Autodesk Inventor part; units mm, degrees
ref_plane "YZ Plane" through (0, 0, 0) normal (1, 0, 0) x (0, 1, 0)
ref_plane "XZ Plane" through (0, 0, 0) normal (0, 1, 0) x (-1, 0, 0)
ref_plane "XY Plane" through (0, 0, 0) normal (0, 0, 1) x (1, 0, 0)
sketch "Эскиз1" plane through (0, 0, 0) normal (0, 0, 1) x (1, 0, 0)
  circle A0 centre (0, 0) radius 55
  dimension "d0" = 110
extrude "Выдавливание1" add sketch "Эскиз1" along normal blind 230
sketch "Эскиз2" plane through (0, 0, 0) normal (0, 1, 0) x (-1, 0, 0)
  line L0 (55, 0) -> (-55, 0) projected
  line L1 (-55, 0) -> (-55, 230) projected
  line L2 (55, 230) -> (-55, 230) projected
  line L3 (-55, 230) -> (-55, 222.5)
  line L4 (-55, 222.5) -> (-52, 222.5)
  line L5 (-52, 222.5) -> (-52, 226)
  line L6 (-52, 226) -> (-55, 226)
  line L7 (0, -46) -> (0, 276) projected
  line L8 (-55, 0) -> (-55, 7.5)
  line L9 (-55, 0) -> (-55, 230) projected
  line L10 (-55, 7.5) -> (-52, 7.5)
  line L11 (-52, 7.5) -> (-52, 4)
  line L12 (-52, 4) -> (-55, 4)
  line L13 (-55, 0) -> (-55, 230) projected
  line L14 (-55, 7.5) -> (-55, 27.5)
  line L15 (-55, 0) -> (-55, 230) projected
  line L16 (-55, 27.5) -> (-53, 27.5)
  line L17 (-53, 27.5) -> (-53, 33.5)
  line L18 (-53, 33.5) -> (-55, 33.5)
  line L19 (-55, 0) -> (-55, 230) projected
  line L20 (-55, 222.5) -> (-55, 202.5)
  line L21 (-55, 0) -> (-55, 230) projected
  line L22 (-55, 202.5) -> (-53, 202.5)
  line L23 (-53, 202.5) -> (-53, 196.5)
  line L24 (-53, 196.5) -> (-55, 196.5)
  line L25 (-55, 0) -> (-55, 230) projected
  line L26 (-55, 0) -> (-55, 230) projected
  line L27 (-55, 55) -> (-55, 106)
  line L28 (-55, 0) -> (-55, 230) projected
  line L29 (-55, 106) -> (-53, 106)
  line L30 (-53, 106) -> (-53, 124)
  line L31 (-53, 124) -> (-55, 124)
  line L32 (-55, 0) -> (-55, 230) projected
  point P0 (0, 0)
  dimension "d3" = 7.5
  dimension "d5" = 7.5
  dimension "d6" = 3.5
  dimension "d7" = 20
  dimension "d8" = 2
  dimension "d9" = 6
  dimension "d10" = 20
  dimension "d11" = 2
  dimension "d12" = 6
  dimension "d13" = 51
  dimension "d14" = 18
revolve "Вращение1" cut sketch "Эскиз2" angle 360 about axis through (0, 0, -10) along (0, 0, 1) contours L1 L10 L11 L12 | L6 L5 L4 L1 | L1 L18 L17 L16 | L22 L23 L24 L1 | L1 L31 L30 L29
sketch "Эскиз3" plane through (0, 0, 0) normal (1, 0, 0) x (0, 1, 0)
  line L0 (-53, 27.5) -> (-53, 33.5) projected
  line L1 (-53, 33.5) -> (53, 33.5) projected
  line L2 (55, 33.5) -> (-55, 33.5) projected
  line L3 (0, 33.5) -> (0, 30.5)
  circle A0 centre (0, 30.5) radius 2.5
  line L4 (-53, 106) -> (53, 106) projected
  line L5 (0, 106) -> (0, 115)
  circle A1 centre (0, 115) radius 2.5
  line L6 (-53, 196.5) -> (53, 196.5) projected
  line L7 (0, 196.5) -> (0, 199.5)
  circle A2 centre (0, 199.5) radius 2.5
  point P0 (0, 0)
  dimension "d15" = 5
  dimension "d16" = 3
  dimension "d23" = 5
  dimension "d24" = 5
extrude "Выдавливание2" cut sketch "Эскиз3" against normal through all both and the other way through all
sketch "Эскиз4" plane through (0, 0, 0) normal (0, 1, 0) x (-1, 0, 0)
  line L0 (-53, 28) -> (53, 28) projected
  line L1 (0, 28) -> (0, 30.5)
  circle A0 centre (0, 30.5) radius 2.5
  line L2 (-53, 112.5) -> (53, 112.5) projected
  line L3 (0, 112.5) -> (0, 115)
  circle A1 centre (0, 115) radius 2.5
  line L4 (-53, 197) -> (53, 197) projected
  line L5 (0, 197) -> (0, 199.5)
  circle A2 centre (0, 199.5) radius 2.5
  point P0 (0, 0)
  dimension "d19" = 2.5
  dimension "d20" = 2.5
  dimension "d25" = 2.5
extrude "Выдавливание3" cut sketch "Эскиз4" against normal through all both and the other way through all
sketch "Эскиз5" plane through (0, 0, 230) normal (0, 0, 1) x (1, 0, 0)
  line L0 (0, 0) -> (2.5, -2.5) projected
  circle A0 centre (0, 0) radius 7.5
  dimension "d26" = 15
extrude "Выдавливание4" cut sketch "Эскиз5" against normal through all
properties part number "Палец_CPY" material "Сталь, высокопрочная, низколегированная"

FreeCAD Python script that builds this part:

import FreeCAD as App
import Part
import Sketcher
Q = App.Units.Quantity

doc = App.newDocument("Part")
body = doc.addObject("PartDesign::Body", "Body")

# Sketch on XY plane
sketch1 = doc.addObject("Sketcher::SketchObject", "Sketch")
body.addObject(sketch1)
sketch1.AttachmentSupport = (doc.XY_Plane, [""])
sketch1.MapMode = "FlatFace"
sketch1.addGeometry(Part.Circle(App.Vector(0, 0, 0), App.Vector(0, 0, 1), 55), False)
sketch1.addConstraint([
    Sketcher.Constraint("Coincident", 0, 3, -1, 1),
    Sketcher.Constraint("Diameter", 0, Q("110 mm")),
])
pad1 = doc.addObject("PartDesign::Pad", "Pad")
body.addObject(pad1)
pad1.Profile = sketch1
pad1.Length = 230

# Sketch on XZ plane
sketch2 = doc.addObject("Sketcher::SketchObject", "Sketch001")
body.addObject(sketch2)
sketch2.AttachmentSupport = (doc.XZ_Plane, [""])
sketch2.MapMode = "FlatFace"
sketch2.addGeometry([
    Part.LineSegment(App.Vector(55, 7.5, 0), App.Vector(55, 4, 0)),  # 0
    Part.LineSegment(App.Vector(55, 4, 0), App.Vector(52, 4, 0)),  # 1
    Part.LineSegment(App.Vector(52, 4, 0), App.Vector(52, 7.5, 0)),  # 2
    Part.LineSegment(App.Vector(52, 7.5, 0), App.Vector(55, 7.5, 0)),  # 3
    Part.LineSegment(App.Vector(52, 226, 0), App.Vector(55, 226, 0)),  # 4
    Part.LineSegment(App.Vector(55, 226, 0), App.Vector(55, 222.5, 0)),  # 5
    Part.LineSegment(App.Vector(55, 222.5, 0), App.Vector(52, 222.5, 0)),  # 6
    Part.LineSegment(App.Vector(52, 222.5, 0), App.Vector(52, 226, 0)),  # 7
    Part.LineSegment(App.Vector(55, 33.5, 0), App.Vector(55, 27.5, 0)),  # 8
    Part.LineSegment(App.Vector(55, 27.5, 0), App.Vector(53, 27.5, 0)),  # 9
    Part.LineSegment(App.Vector(53, 27.5, 0), App.Vector(53, 33.5, 0)),  # 10
    Part.LineSegment(App.Vector(53, 33.5, 0), App.Vector(55, 33.5, 0)),  # 11
    Part.LineSegment(App.Vector(53, 202.5, 0), App.Vector(55, 202.5, 0)),  # 12
    Part.LineSegment(App.Vector(55, 202.5, 0), App.Vector(55, 196.5, 0)),  # 13
    Part.LineSegment(App.Vector(55, 196.5, 0), App.Vector(53, 196.5, 0)),  # 14
    Part.LineSegment(App.Vector(53, 196.5, 0), App.Vector(53, 202.5, 0)),  # 15
    Part.LineSegment(App.Vector(55, 124, 0), App.Vector(55, 106, 0)),  # 16
    Part.LineSegment(App.Vector(55, 106, 0), App.Vector(53, 106, 0)),  # 17
    Part.LineSegment(App.Vector(53, 106, 0), App.Vector(53, 124, 0)),  # 18
    Part.LineSegment(App.Vector(53, 124, 0), App.Vector(55, 124, 0)),  # 19
], False)
sketch2.addConstraint([
    Sketcher.Constraint("Coincident", 0, 2, 1, 1),
    Sketcher.Constraint("Coincident", 1, 2, 2, 1),
    Sketcher.Constraint("Coincident", 2, 2, 3, 1),
    Sketcher.Constraint("Coincident", 3, 2, 0, 1),
    Sketcher.Constraint("Coincident", 4, 2, 5, 1),
    Sketcher.Constraint("Coincident", 5, 2, 6, 1),
    Sketcher.Constraint("Coincident", 6, 2, 7, 1),
    Sketcher.Constraint("Coincident", 7, 2, 4, 1),
    Sketcher.Constraint("Coincident", 8, 2, 9, 1),
    Sketcher.Constraint("Coincident", 9, 2, 10, 1),
    Sketcher.Constraint("Coincident", 10, 2, 11, 1),
    Sketcher.Constraint("Coincident", 11, 2, 8, 1),
    Sketcher.Constraint("Coincident", 12, 2, 13, 1),
    Sketcher.Constraint("Coincident", 13, 2, 14, 1),
    Sketcher.Constraint("Coincident", 14, 2, 15, 1),
    Sketcher.Constraint("Coincident", 15, 2, 12, 1),
    Sketcher.Constraint("Coincident", 16, 2, 17, 1),
    Sketcher.Constraint("Coincident", 17, 2, 18, 1),
    Sketcher.Constraint("Coincident", 18, 2, 19, 1),
    Sketcher.Constraint("Coincident", 19, 2, 16, 1),
    Sketcher.Constraint("Vertical", 0),
    Sketcher.Constraint("Horizontal", 1),
    Sketcher.Constraint("Vertical", 2),
    Sketcher.Constraint("Horizontal", 3),
    Sketcher.Constraint("Horizontal", 4),
    Sketcher.Constraint("Vertical", 5),
    Sketcher.Constraint("Horizontal", 6),
    Sketcher.Constraint("Vertical", 7),
    Sketcher.Constraint("Vertical", 8),
    Sketcher.Constraint("Horizontal", 9),
    Sketcher.Constraint("Vertical", 10),
    Sketcher.Constraint("Horizontal", 11),
    Sketcher.Constraint("Horizontal", 12),
    Sketcher.Constraint("Vertical", 13),
    Sketcher.Constraint("Horizontal", 14),
    Sketcher.Constraint("Vertical", 15),
    Sketcher.Constraint("Vertical", 16),
    Sketcher.Constraint("Horizontal", 17),
    Sketcher.Constraint("Vertical", 18),
    Sketcher.Constraint("Horizontal", 19),
    Sketcher.Constraint("Vertical", 3, 2, 4, 2),
    Sketcher.Constraint("Vertical", 2, 2, 6, 2),
    Sketcher.Constraint("Vertical", 5, 2, 8, 2),
    Sketcher.Constraint("Vertical", 11, 2, 12, 2),
    Sketcher.Constraint("Vertical", 10, 2, 14, 2),
    Sketcher.Constraint("Vertical", 13, 2, 16, 2),
    Sketcher.Constraint("Vertical", 15, 2, 17, 2),
    Sketcher.Constraint("Equal", 2, 5),
    Sketcher.Constraint("Equal", 10, 13),
    Sketcher.Constraint("DistanceX", 9, 2, 9, 1, Q("2 mm")),
    Sketcher.Constraint("DistanceY", 8, 2, 8, 1, Q("6 mm")),
    Sketcher.Constraint("DistanceY", 16, 2, 16, 1, Q("18 mm")),
    Sketcher.Constraint("DistanceY", 0, 2, 0, 1, Q("3.5 mm")),
    Sketcher.Constraint("DistanceY", 3, 2, 8, 2, Q("20 mm")),
    Sketcher.Constraint("DistanceY", 12, 2, 5, 2, Q("20 mm")),
    Sketcher.Constraint("DistanceY", -1, 1, 2, 2, Q("7.5 mm")),
    Sketcher.Constraint("DistanceX", 1, 2, 1, 1, Q("3 mm")),
    Sketcher.Constraint("DistanceX", -1, 1, 0, 2, Q("55 mm")),
    Sketcher.Constraint("DistanceY", -1, 1, 4, 2, Q("226 mm")),
    Sketcher.Constraint("DistanceY", -1, 1, 16, 2, Q("106 mm")),
])
groove = doc.addObject("PartDesign::Groove", "Groove")
body.addObject(groove)
groove.Profile = sketch2
groove.ReferenceAxis = (sketch2, ["V_Axis"])
groove.Angle = 360

# Sketch on YZ plane
sketch3 = doc.addObject("Sketcher::SketchObject", "Sketch002")
body.addObject(sketch3)
sketch3.AttachmentSupport = (doc.YZ_Plane, [""])
sketch3.MapMode = "FlatFace"
sketch3.addGeometry([
    Part.Circle(App.Vector(0, 30.5, 0), App.Vector(0, 0, 1), 2.5),
    Part.Circle(App.Vector(0, 115, 0), App.Vector(0, 0, 1), 2.5),
    Part.Circle(App.Vector(0, 199.5, 0), App.Vector(0, 0, 1), 2.5),
], False)
sketch3.addConstraint([
    Sketcher.Constraint("Equal", 0, 1),
    Sketcher.Constraint("Equal", 1, 2),
    Sketcher.Constraint("PointOnObject", 0, 3, -2),
    Sketcher.Constraint("PointOnObject", 1, 3, -2),
    Sketcher.Constraint("PointOnObject", 2, 3, -2),
    Sketcher.Constraint("Diameter", 0, Q("5 mm")),
    Sketcher.Constraint("DistanceY", -1, 1, 1, 3, Q("115 mm")),
    Sketcher.Constraint("DistanceY", 0, 3, 2, 3, Q("169 mm")),
    Sketcher.Constraint("DistanceY", -1, 1, 0, 3, Q("30.5 mm")),
])
pocket1 = doc.addObject("PartDesign::Pocket", "Pocket")
body.addObject(pocket1)
pocket1.Profile = sketch3
pocket1.Type = "ThroughAll"
pocket1.Midplane = True

# Sketch on XZ plane
sketch4 = doc.addObject("Sketcher::SketchObject", "Sketch003")
body.addObject(sketch4)
sketch4.AttachmentSupport = (doc.XZ_Plane, [""])
sketch4.MapMode = "FlatFace"
sketch4.addGeometry([
    Part.Circle(App.Vector(0, 30.5, 0), App.Vector(0, 0, 1), 2.5),
    Part.Circle(App.Vector(0, 115, 0), App.Vector(0, 0, 1), 2.5),
    Part.Circle(App.Vector(0, 199.5, 0), App.Vector(0, 0, 1), 2.5),
], False)
sketch4.addConstraint([
    Sketcher.Constraint("Equal", 0, 1),
    Sketcher.Constraint("Equal", 1, 2),
    Sketcher.Constraint("PointOnObject", 0, 3, -2),
    Sketcher.Constraint("PointOnObject", 1, 3, -2),
    Sketcher.Constraint("PointOnObject", 2, 3, -2),
    Sketcher.Constraint("Diameter", 0, Q("5 mm")),
    Sketcher.Constraint("DistanceY", -1, 1, 1, 3, Q("115 mm")),
    Sketcher.Constraint("DistanceY", 0, 3, 2, 3, Q("169 mm")),
    Sketcher.Constraint("DistanceY", -1, 1, 0, 3, Q("30.5 mm")),
])
pocket2 = doc.addObject("PartDesign::Pocket", "Pocket001")
body.addObject(pocket2)
pocket2.Profile = sketch4
pocket2.Type = "ThroughAll"
pocket2.Midplane = True

# Sketch on XY plane
sketch5 = doc.addObject("Sketcher::SketchObject", "Sketch004")
body.addObject(sketch5)
sketch5.AttachmentSupport = (doc.XY_Plane, [""])
sketch5.MapMode = "FlatFace"
sketch5.AttachmentOffset = App.Placement(App.Vector(0, 0, 230), App.Rotation())
sketch5.addGeometry(Part.Circle(App.Vector(0, 0, 0), App.Vector(0, 0, 1), 8), False)
sketch5.addConstraint([
    Sketcher.Constraint("Coincident", 0, 3, -1, 1),
    Sketcher.Constraint("Diameter", 0, Q("15 mm")),
])
pocket3 = doc.addObject("PartDesign::Pocket", "Pocket002")
body.addObject(pocket3)
pocket3.Profile = sketch5
pocket3.Type = "ThroughAll"

doc.recompute()
